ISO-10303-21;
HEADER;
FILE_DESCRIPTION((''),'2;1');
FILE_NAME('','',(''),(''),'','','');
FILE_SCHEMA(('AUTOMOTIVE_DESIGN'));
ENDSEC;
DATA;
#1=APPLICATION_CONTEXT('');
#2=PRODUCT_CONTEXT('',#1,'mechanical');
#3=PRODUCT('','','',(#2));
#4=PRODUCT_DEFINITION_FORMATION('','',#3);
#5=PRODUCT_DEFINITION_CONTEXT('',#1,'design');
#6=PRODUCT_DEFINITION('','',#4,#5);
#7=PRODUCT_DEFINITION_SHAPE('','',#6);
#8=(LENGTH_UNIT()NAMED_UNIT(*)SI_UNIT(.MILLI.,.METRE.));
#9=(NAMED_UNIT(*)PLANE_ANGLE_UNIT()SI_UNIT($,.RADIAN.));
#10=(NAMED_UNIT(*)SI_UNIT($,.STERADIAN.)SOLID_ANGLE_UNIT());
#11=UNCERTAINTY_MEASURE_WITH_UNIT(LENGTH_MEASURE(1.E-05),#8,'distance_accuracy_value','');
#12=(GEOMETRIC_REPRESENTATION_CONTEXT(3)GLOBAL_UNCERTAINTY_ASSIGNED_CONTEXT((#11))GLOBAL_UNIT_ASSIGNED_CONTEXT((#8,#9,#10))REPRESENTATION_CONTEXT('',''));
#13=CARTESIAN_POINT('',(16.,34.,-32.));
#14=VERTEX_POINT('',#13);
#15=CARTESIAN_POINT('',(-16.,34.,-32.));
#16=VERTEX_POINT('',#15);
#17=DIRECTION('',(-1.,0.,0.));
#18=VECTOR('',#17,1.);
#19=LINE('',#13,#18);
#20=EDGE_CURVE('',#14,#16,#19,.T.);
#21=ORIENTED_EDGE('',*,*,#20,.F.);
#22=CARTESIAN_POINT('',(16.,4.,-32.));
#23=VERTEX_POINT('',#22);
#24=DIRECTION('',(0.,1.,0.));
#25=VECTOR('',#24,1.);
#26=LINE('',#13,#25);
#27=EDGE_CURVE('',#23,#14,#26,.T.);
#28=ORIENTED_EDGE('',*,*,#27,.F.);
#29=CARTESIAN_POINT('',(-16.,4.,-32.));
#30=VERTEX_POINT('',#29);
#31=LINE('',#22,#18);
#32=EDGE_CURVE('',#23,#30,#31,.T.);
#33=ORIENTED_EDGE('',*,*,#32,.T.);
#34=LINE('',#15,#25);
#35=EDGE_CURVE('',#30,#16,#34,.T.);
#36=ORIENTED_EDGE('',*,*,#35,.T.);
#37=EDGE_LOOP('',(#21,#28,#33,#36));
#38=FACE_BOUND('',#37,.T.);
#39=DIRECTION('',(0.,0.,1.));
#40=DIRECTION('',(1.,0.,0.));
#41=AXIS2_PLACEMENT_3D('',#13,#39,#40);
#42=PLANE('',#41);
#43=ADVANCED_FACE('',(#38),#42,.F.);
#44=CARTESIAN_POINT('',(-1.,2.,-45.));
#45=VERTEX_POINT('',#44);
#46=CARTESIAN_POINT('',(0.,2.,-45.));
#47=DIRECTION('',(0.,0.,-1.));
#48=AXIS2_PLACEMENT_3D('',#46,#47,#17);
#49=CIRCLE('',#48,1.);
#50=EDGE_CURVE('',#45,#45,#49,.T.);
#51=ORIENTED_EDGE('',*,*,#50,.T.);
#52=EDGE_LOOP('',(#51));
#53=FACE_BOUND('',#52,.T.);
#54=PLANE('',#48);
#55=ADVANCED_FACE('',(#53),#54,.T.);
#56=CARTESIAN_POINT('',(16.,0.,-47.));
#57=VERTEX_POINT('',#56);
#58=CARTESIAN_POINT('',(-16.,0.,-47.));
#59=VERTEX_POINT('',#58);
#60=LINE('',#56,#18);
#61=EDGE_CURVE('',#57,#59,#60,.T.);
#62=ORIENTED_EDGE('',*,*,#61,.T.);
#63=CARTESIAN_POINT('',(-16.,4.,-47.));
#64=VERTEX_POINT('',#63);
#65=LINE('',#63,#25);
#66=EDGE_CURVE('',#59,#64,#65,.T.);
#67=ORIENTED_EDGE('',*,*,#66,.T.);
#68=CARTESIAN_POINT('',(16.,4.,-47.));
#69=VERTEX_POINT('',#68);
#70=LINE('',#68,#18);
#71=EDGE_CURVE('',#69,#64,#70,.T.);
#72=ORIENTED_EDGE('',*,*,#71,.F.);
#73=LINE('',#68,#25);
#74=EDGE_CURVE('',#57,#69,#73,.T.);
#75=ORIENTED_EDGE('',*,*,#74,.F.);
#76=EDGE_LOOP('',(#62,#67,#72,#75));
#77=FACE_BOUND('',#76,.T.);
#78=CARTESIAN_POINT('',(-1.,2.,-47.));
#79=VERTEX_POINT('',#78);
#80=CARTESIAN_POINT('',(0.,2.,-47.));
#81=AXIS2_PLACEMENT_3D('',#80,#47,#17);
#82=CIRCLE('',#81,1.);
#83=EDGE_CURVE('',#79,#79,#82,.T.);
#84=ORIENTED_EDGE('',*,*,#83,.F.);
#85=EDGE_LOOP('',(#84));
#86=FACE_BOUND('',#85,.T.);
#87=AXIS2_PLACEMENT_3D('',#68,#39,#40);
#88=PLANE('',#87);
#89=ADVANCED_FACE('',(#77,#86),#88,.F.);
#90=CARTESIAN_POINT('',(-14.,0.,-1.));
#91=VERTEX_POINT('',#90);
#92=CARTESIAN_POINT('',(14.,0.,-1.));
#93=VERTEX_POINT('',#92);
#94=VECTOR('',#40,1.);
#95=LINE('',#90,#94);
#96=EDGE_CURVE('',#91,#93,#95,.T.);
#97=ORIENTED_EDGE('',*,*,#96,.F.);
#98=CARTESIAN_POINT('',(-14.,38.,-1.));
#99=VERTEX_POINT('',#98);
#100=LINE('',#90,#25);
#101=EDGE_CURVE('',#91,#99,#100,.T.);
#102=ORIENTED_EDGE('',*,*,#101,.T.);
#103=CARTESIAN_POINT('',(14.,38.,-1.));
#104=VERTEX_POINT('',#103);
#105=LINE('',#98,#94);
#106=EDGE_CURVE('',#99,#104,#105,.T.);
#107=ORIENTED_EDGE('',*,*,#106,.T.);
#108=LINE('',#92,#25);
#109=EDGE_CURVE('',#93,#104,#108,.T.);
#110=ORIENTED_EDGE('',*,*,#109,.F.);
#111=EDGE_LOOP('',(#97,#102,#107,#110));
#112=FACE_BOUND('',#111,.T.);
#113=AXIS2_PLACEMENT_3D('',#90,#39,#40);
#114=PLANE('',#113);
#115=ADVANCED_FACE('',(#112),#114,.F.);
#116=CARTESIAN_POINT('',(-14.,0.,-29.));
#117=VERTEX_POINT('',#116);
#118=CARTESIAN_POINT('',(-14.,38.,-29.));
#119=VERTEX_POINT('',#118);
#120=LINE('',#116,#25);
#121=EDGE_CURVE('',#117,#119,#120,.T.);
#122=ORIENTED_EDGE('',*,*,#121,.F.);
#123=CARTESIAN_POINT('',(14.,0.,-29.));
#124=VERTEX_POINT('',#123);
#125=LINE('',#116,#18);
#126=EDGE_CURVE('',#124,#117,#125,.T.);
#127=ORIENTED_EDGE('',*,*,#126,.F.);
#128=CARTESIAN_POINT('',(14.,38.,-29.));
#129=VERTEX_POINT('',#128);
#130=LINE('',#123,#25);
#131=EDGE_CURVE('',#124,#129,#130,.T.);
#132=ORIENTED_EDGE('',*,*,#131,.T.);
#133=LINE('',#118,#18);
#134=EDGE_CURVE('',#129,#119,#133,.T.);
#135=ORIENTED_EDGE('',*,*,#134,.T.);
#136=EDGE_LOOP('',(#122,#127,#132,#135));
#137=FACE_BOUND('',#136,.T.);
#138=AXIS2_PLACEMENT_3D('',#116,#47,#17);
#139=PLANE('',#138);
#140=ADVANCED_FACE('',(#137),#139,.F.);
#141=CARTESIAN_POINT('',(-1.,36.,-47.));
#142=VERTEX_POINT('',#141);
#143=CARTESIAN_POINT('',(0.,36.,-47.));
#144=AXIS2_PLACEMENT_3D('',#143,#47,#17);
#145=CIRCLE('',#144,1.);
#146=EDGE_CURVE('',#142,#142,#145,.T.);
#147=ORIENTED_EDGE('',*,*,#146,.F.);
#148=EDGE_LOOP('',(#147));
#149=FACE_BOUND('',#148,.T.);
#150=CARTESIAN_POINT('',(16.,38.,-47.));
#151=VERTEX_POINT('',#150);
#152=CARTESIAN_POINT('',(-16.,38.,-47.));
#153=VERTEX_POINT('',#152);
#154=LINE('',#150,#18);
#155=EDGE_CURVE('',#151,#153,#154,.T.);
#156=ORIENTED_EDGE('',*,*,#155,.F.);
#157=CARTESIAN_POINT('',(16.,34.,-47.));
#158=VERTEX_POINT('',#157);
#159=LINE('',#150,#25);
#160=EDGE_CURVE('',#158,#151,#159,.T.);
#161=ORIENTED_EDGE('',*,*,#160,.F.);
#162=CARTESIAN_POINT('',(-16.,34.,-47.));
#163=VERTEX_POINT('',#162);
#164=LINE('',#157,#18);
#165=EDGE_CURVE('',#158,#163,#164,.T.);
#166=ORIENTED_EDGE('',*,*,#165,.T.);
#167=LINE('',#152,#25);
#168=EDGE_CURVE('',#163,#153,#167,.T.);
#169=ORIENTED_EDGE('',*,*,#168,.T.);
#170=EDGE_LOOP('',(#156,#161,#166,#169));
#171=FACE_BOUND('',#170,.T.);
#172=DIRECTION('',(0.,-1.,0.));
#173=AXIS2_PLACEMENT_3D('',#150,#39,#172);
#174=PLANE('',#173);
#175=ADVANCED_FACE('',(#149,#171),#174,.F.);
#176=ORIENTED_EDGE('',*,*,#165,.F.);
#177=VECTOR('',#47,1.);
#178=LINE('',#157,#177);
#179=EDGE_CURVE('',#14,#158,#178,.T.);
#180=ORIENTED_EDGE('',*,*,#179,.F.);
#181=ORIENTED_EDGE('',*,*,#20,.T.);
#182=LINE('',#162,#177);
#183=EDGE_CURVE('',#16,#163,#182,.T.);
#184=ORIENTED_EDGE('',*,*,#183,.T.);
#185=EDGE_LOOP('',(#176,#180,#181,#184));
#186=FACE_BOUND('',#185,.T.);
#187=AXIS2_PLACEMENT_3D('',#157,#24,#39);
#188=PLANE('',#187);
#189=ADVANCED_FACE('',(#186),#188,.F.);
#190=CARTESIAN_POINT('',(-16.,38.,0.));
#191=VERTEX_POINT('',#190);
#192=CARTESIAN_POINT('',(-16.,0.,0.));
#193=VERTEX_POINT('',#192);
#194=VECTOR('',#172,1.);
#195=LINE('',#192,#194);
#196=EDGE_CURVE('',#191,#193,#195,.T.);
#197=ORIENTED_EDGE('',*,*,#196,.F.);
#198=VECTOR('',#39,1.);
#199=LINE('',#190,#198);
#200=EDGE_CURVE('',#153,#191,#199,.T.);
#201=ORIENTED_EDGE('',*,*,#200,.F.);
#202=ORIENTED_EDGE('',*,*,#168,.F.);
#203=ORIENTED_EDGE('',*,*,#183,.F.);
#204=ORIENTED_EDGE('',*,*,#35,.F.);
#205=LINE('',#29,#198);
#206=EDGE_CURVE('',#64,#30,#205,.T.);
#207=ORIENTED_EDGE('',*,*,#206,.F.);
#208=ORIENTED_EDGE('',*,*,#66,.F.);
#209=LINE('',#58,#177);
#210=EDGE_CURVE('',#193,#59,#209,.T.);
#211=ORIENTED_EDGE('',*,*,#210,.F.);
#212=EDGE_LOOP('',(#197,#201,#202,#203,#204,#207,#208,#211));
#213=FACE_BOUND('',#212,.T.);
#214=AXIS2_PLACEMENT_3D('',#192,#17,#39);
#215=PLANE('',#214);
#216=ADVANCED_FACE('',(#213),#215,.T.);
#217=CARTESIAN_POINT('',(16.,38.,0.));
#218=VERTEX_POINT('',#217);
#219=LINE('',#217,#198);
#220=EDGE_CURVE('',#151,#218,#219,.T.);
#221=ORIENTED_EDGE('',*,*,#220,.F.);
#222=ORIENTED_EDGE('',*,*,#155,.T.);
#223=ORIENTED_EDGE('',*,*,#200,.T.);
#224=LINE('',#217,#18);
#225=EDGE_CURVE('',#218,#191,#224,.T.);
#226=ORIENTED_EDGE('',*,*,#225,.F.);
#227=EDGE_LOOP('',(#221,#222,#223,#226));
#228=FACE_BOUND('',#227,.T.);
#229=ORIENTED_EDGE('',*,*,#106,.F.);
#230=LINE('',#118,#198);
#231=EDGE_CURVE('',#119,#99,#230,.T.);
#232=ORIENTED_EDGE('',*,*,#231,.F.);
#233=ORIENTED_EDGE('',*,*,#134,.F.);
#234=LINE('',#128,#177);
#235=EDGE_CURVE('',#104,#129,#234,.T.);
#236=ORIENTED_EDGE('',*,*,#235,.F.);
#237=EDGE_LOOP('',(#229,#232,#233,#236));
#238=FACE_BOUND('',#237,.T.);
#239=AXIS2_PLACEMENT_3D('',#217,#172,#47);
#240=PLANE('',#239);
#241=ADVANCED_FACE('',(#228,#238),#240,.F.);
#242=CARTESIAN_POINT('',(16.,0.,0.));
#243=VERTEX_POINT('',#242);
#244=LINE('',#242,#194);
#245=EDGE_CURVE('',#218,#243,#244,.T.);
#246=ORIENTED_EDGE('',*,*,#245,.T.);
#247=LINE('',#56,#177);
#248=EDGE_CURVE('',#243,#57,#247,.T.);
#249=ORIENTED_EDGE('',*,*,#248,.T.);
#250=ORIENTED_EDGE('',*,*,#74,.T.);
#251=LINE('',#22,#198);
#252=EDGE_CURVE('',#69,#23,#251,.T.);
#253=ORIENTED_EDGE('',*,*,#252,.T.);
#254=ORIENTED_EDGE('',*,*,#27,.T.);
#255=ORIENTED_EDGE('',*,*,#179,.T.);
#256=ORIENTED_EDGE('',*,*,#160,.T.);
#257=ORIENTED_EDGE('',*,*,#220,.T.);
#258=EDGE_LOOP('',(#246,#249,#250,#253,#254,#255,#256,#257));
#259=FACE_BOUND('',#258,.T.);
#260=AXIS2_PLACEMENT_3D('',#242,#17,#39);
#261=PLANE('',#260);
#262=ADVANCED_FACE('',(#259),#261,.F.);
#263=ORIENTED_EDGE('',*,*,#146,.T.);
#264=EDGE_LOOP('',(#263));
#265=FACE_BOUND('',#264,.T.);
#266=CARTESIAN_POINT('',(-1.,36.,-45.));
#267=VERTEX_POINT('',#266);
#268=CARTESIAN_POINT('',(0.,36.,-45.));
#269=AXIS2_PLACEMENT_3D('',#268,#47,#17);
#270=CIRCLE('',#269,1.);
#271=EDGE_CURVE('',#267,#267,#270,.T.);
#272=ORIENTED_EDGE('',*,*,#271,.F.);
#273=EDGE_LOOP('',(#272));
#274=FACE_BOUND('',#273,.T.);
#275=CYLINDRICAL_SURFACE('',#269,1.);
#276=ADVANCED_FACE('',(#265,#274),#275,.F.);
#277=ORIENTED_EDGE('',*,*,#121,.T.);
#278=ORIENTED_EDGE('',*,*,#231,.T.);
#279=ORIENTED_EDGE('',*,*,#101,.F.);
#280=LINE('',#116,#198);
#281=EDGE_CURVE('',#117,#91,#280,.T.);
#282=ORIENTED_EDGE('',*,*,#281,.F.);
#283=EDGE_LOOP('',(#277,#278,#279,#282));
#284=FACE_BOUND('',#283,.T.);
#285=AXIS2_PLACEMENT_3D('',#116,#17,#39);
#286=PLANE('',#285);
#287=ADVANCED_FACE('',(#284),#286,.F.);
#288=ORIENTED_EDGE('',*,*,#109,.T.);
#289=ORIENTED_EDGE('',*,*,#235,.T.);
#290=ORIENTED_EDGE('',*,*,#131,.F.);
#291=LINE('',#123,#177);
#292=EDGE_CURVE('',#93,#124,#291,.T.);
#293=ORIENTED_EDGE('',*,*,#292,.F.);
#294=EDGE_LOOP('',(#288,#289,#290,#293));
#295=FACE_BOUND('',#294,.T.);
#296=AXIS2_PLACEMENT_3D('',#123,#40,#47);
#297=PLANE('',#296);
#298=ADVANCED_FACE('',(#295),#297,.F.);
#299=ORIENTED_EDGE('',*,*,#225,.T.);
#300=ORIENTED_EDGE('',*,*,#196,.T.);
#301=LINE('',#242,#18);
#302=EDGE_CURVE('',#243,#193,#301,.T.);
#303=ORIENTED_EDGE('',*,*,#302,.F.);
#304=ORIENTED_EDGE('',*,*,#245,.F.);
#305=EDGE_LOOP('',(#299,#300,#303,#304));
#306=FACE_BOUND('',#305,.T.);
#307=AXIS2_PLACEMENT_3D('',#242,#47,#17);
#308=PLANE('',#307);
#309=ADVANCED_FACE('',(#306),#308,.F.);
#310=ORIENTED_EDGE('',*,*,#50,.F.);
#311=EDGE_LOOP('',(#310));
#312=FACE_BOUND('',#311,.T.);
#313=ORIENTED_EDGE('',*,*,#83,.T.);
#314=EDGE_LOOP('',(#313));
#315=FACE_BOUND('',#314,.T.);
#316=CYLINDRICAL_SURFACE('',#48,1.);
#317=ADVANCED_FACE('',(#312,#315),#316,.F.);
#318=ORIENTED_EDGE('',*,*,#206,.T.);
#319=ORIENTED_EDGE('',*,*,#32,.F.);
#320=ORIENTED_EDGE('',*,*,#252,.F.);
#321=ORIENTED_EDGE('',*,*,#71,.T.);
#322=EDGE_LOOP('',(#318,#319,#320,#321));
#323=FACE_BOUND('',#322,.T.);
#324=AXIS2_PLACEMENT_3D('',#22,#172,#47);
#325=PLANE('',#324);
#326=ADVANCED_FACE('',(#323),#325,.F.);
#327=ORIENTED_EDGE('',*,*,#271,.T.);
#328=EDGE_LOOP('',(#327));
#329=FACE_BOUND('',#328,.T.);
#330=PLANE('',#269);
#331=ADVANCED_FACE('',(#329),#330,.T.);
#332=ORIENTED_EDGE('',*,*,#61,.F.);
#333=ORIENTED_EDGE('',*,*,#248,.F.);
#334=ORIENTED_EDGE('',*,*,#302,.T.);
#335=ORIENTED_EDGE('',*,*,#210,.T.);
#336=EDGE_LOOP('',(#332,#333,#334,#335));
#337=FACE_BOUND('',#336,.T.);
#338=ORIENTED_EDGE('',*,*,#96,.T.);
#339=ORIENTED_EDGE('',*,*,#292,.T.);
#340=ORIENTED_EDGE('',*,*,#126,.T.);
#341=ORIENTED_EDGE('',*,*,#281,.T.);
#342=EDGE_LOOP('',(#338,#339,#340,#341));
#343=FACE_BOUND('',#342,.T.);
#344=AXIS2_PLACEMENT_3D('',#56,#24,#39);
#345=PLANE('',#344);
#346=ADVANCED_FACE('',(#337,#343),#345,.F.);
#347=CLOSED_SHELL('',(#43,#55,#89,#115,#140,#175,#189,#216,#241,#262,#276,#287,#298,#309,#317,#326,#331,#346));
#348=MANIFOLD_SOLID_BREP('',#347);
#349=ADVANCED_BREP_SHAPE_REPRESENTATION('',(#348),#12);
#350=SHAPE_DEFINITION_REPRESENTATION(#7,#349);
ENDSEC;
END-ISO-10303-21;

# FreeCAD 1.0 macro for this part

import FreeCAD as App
import Part
import Sketcher
from FreeCAD import Vector


def add_polygon(sketch, points):
    """Adds a closed chain of lines whose ends are joined by coincident constraints."""
    first, n = sketch.GeometryCount, len(points)
    for a, b in zip(points, points[1:] + points[:1]):
        sketch.addGeometry(Part.LineSegment(App.Vector(*a, 0), App.Vector(*b, 0)), False)
    for i in range(n):
        sketch.addConstraint(Sketcher.Constraint("Coincident", first + i, 2, first + (i + 1) % n, 1))

doc = App.newDocument("Part")
body = doc.addObject("PartDesign::Body", "Body")

# Sketch on YZ plane
sketch1 = body.newObject("Sketcher::SketchObject", "Sketch")
sketch1.AttachmentSupport = (doc.getObject("YZ_Plane"), [""])
sketch1.MapMode = "FlatFace"
add_polygon(sketch1, [(38, 0), (0, 0), (0, -47), (4, -47), (4, -32), (34, -32), (34, -47), (38, -47)])  # lines 0-7
sketch1.addConstraint([
    Sketcher.Constraint("Horizontal", 0),
    Sketcher.Constraint("Vertical", 1),
    Sketcher.Constraint("Horizontal", 2),
    Sketcher.Constraint("Vertical", 3),
    Sketcher.Constraint("Horizontal", 4),
    Sketcher.Constraint("Vertical", 5),
    Sketcher.Constraint("Horizontal", 6),
    Sketcher.Constraint("Vertical", 7),
    Sketcher.Constraint("Coincident", 0, 2, -1, 1),
    Sketcher.Constraint("Horizontal", 2, 2, 5, 2),
    Sketcher.Constraint("Equal", 2, 6),
    Sketcher.Constraint("DistanceX", 0, 2, 0, 1, 38.0),
    Sketcher.Constraint("DistanceX", 2, 1, 2, 2, 4.0),
    Sketcher.Constraint("DistanceY", 1, 2, 1, 1, 47.0),
    Sketcher.Constraint("DistanceY", 3, 1, 3, 2, 15.0),
])
pad1 = body.newObject("PartDesign::Pad", "Pad")
pad1.Profile = sketch1
pad1.Length = 32
pad1.Midplane = True

# Sketch on XZ plane
sketch2 = body.newObject("Sketcher::SketchObject", "Sketch001")
sketch2.AttachmentSupport = (doc.getObject("XZ_Plane"), [""])
sketch2.MapMode = "FlatFace"
sketch2.AttachmentOffset = App.Placement(Vector(0, 0, -38), App.Rotation())
add_polygon(sketch2, [(-14, -29), (-14, -1), (14, -1), (14, -29)])  # lines 0-3
sketch2.addConstraint([
    Sketcher.Constraint("Vertical", 0),
    Sketcher.Constraint("Horizontal", 1),
    Sketcher.Constraint("Vertical", 2),
    Sketcher.Constraint("Horizontal", 3),
    Sketcher.Constraint("Equal", 3, 0),
    Sketcher.Constraint("DistanceX", 1, 1, 1, 2, 28.0),
    Sketcher.Constraint("DistanceX", 0, 2, -1, 1, 14.0),
    Sketcher.Constraint("DistanceY", 0, 2, -1, 1, 1.0),
])
pocket1 = body.newObject("PartDesign::Pocket", "Pocket")
pocket1.Profile = sketch2
pocket1.Type = "ThroughAll"
pocket1.Reversed = True

# Sketch on XY plane
sketch3 = body.newObject("Sketcher::SketchObject", "Sketch002")
sketch3.AttachmentSupport = (doc.getObject("XY_Plane"), [""])
sketch3.MapMode = "FlatFace"
sketch3.AttachmentOffset = App.Placement(Vector(0, 0, -47), App.Rotation())
sketch3.addGeometry([
    Part.Circle(Vector(0, 36, 0), Vector(0, 0, 1), 1),
    Part.Circle(Vector(0, 2, 0), Vector(0, 0, 1), 1),
], False)
sketch3.addConstraint([
    Sketcher.Constraint("Equal", 0, 1),
    Sketcher.Constraint("PointOnObject", 0, 3, -2),
    Sketcher.Constraint("PointOnObject", 1, 3, -2),
    Sketcher.Constraint("Diameter", 0, 2.0),
    Sketcher.Constraint("DistanceY", -1, 1, 0, 3, 36.0),
    Sketcher.Constraint("DistanceY", -1, 1, 1, 3, 2.0),
])
pocket2 = body.newObject("PartDesign::Pocket", "Pocket001")
pocket2.Profile = sketch3
pocket2.Length = 2
pocket2.Reversed = True

doc.recompute()
